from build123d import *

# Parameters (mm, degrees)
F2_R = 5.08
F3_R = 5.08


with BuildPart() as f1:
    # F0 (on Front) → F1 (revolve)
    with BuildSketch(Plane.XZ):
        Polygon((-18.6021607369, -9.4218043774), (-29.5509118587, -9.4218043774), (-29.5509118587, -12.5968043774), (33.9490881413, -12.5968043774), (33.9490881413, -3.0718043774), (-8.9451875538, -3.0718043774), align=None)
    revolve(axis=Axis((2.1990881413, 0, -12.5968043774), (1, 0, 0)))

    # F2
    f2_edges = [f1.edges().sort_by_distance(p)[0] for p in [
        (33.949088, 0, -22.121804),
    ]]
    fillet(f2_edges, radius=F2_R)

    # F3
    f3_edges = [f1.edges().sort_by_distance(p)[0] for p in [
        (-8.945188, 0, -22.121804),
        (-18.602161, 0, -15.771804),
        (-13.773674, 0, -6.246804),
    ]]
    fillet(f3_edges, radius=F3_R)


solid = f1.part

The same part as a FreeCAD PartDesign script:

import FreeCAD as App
import Part
import Sketcher
Q = App.Units.Quantity


def edges_at(feature, points):
    """Names of the edges that pass closest to the given points."""
    edges = feature.Shape.Edges
    near = lambda p: min(range(len(edges)), key=lambda i: edges[i].distToShape(Part.Vertex(*p))[0])
    return sorted({f"Edge{near(p) + 1}" for p in points})


def add_polygon(sketch, points):
    """Adds a closed chain of lines whose ends are joined by coincident constraints."""
    first, n = sketch.GeometryCount, len(points)
    for a, b in zip(points, points[1:] + points[:1]):
        sketch.addGeometry(Part.LineSegment(App.Vector(*a, 0), App.Vector(*b, 0)), False)
    for i in range(n):
        sketch.addConstraint(Sketcher.Constraint("Coincident", first + i, 2, first + (i + 1) % n, 1))

doc = App.newDocument("Part")
params = doc.addObject("Spreadsheet::Sheet", "Params")
for row, (alias, value) in enumerate([
    ("sketch1_width", "2.5 in"),
    ("sketch1_height", "0.125 in"),
    ("sketch1_height2", "0.375 in"),
    ("revolution_angle", "360 deg"),
    ("fillet_radius", "0.2 in"),
    ("fillet2_radius", "0.2 in"),
], start=1):
    params.set(f"A{row}", alias)
    params.set(f"B{row}", "=" + value)
    params.setAlias(f"B{row}", alias)

body = doc.addObject("PartDesign::Body", "Body")

# Sketch on XZ plane
sketch1 = body.newObject("Sketcher::SketchObject", "Sketch")
sketch1.AttachmentSupport = (doc.getObject("XZ_Plane"), [""])
sketch1.MapMode = "FlatFace"
add_polygon(sketch1, [(-18.6, -9.4), (-29.6, -9.4), (-29.6, -12.6), (33.9, -12.6), (33.9, -3.1), (-8.9, -3.1)])  # lines 0-5
sketch1.addGeometry(Part.LineSegment(App.Vector(-29.6, -12.6, 0), App.Vector(33.9, -12.6, 0)), True)  # axis
sketch1.addConstraint([
    Sketcher.Constraint("Horizontal", 0),
    Sketcher.Constraint("Vertical", 1),
    Sketcher.Constraint("Horizontal", 2),
    Sketcher.Constraint("Vertical", 3),
    Sketcher.Constraint("Horizontal", 4),
    Sketcher.Constraint("Horizontal", 6),
    Sketcher.Constraint("Coincident", 6, 1, 1, 2),
    Sketcher.Constraint("Vertical", 3, 2, 6, 2),
    Sketcher.Constraint("DistanceX", 2, 1, 2, 2, Q("2.5 in")),
    Sketcher.Constraint("DistanceY", 1, 2, 1, 1, Q("0.125 in")),
    Sketcher.Constraint("DistanceY", 3, 1, 3, 2, Q("0.375 in")),
    Sketcher.Constraint("DistanceX", 0, 2, 0, 1, Q("10.948751 mm")),
    Sketcher.Constraint("DistanceX", 4, 2, 4, 1, Q("42.894276 mm")),
    Sketcher.Constraint("DistanceX", 0, 2, -1, 1, Q("29.550912 mm")),
    Sketcher.Constraint("DistanceY", 0, 2, -1, 1, Q("9.421804 mm")),
])
sketch1.setExpression("Constraints[14]", "Params.sketch1_width")
sketch1.setExpression("Constraints[15]", "Params.sketch1_height")
sketch1.setExpression("Constraints[16]", "Params.sketch1_height2")
revolution = body.newObject("PartDesign::Revolution", "Revolution")
revolution.Profile = sketch1
revolution.ReferenceAxis = (sketch1, ["Axis0"])
revolution.setExpression("Angle", "Params.revolution_angle")
doc.recompute()

fillet = body.newObject("PartDesign::Fillet", "Fillet")
fillet.Base = (revolution, edges_at(revolution, [(33.949, 0, -22.122)]))
fillet.setExpression("Radius", "Params.fillet_radius")
doc.recompute()

fillet2 = body.newObject("PartDesign::Fillet", "Fillet001")
fillet2.Base = (fillet, edges_at(fillet, [(-8.945, 0, -22.122), (-18.602, 0, -15.772), (-13.774, 0, -6.247)]))
fillet2.setExpression("Radius", "Params.fillet2_radius")

doc.recompute()
